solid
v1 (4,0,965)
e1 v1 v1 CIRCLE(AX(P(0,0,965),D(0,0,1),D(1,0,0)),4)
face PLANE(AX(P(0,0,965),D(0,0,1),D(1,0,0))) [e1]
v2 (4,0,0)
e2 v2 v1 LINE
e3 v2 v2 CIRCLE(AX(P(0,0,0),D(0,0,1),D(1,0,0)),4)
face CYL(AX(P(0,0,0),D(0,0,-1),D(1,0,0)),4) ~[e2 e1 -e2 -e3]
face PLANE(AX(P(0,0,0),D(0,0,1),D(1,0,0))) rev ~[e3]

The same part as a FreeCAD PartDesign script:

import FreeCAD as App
import Part
import Sketcher

V = App.Vector

doc = App.newDocument("Part")
body = doc.addObject("PartDesign::Body", "Body")

sketch1 = body.newObject("Sketcher::SketchObject", "Sketch")
sketch1.AttachmentSupport = (doc.getObject("XY_Plane"), [""])
sketch1.MapMode = "FlatFace"
sketch1.addGeometry(Part.Circle(V(0, 0, 0), V(0, 0, 1), 4), False)
sketch1.addConstraint([
    Sketcher.Constraint("Coincident", 0, 3, -1, 1),
    Sketcher.Constraint("Diameter", 0, 8.0),
])
pad1 = body.newObject("PartDesign::Pad", "Pad")
pad1.Profile = sketch1
pad1.Length = 965

doc.recompute()
